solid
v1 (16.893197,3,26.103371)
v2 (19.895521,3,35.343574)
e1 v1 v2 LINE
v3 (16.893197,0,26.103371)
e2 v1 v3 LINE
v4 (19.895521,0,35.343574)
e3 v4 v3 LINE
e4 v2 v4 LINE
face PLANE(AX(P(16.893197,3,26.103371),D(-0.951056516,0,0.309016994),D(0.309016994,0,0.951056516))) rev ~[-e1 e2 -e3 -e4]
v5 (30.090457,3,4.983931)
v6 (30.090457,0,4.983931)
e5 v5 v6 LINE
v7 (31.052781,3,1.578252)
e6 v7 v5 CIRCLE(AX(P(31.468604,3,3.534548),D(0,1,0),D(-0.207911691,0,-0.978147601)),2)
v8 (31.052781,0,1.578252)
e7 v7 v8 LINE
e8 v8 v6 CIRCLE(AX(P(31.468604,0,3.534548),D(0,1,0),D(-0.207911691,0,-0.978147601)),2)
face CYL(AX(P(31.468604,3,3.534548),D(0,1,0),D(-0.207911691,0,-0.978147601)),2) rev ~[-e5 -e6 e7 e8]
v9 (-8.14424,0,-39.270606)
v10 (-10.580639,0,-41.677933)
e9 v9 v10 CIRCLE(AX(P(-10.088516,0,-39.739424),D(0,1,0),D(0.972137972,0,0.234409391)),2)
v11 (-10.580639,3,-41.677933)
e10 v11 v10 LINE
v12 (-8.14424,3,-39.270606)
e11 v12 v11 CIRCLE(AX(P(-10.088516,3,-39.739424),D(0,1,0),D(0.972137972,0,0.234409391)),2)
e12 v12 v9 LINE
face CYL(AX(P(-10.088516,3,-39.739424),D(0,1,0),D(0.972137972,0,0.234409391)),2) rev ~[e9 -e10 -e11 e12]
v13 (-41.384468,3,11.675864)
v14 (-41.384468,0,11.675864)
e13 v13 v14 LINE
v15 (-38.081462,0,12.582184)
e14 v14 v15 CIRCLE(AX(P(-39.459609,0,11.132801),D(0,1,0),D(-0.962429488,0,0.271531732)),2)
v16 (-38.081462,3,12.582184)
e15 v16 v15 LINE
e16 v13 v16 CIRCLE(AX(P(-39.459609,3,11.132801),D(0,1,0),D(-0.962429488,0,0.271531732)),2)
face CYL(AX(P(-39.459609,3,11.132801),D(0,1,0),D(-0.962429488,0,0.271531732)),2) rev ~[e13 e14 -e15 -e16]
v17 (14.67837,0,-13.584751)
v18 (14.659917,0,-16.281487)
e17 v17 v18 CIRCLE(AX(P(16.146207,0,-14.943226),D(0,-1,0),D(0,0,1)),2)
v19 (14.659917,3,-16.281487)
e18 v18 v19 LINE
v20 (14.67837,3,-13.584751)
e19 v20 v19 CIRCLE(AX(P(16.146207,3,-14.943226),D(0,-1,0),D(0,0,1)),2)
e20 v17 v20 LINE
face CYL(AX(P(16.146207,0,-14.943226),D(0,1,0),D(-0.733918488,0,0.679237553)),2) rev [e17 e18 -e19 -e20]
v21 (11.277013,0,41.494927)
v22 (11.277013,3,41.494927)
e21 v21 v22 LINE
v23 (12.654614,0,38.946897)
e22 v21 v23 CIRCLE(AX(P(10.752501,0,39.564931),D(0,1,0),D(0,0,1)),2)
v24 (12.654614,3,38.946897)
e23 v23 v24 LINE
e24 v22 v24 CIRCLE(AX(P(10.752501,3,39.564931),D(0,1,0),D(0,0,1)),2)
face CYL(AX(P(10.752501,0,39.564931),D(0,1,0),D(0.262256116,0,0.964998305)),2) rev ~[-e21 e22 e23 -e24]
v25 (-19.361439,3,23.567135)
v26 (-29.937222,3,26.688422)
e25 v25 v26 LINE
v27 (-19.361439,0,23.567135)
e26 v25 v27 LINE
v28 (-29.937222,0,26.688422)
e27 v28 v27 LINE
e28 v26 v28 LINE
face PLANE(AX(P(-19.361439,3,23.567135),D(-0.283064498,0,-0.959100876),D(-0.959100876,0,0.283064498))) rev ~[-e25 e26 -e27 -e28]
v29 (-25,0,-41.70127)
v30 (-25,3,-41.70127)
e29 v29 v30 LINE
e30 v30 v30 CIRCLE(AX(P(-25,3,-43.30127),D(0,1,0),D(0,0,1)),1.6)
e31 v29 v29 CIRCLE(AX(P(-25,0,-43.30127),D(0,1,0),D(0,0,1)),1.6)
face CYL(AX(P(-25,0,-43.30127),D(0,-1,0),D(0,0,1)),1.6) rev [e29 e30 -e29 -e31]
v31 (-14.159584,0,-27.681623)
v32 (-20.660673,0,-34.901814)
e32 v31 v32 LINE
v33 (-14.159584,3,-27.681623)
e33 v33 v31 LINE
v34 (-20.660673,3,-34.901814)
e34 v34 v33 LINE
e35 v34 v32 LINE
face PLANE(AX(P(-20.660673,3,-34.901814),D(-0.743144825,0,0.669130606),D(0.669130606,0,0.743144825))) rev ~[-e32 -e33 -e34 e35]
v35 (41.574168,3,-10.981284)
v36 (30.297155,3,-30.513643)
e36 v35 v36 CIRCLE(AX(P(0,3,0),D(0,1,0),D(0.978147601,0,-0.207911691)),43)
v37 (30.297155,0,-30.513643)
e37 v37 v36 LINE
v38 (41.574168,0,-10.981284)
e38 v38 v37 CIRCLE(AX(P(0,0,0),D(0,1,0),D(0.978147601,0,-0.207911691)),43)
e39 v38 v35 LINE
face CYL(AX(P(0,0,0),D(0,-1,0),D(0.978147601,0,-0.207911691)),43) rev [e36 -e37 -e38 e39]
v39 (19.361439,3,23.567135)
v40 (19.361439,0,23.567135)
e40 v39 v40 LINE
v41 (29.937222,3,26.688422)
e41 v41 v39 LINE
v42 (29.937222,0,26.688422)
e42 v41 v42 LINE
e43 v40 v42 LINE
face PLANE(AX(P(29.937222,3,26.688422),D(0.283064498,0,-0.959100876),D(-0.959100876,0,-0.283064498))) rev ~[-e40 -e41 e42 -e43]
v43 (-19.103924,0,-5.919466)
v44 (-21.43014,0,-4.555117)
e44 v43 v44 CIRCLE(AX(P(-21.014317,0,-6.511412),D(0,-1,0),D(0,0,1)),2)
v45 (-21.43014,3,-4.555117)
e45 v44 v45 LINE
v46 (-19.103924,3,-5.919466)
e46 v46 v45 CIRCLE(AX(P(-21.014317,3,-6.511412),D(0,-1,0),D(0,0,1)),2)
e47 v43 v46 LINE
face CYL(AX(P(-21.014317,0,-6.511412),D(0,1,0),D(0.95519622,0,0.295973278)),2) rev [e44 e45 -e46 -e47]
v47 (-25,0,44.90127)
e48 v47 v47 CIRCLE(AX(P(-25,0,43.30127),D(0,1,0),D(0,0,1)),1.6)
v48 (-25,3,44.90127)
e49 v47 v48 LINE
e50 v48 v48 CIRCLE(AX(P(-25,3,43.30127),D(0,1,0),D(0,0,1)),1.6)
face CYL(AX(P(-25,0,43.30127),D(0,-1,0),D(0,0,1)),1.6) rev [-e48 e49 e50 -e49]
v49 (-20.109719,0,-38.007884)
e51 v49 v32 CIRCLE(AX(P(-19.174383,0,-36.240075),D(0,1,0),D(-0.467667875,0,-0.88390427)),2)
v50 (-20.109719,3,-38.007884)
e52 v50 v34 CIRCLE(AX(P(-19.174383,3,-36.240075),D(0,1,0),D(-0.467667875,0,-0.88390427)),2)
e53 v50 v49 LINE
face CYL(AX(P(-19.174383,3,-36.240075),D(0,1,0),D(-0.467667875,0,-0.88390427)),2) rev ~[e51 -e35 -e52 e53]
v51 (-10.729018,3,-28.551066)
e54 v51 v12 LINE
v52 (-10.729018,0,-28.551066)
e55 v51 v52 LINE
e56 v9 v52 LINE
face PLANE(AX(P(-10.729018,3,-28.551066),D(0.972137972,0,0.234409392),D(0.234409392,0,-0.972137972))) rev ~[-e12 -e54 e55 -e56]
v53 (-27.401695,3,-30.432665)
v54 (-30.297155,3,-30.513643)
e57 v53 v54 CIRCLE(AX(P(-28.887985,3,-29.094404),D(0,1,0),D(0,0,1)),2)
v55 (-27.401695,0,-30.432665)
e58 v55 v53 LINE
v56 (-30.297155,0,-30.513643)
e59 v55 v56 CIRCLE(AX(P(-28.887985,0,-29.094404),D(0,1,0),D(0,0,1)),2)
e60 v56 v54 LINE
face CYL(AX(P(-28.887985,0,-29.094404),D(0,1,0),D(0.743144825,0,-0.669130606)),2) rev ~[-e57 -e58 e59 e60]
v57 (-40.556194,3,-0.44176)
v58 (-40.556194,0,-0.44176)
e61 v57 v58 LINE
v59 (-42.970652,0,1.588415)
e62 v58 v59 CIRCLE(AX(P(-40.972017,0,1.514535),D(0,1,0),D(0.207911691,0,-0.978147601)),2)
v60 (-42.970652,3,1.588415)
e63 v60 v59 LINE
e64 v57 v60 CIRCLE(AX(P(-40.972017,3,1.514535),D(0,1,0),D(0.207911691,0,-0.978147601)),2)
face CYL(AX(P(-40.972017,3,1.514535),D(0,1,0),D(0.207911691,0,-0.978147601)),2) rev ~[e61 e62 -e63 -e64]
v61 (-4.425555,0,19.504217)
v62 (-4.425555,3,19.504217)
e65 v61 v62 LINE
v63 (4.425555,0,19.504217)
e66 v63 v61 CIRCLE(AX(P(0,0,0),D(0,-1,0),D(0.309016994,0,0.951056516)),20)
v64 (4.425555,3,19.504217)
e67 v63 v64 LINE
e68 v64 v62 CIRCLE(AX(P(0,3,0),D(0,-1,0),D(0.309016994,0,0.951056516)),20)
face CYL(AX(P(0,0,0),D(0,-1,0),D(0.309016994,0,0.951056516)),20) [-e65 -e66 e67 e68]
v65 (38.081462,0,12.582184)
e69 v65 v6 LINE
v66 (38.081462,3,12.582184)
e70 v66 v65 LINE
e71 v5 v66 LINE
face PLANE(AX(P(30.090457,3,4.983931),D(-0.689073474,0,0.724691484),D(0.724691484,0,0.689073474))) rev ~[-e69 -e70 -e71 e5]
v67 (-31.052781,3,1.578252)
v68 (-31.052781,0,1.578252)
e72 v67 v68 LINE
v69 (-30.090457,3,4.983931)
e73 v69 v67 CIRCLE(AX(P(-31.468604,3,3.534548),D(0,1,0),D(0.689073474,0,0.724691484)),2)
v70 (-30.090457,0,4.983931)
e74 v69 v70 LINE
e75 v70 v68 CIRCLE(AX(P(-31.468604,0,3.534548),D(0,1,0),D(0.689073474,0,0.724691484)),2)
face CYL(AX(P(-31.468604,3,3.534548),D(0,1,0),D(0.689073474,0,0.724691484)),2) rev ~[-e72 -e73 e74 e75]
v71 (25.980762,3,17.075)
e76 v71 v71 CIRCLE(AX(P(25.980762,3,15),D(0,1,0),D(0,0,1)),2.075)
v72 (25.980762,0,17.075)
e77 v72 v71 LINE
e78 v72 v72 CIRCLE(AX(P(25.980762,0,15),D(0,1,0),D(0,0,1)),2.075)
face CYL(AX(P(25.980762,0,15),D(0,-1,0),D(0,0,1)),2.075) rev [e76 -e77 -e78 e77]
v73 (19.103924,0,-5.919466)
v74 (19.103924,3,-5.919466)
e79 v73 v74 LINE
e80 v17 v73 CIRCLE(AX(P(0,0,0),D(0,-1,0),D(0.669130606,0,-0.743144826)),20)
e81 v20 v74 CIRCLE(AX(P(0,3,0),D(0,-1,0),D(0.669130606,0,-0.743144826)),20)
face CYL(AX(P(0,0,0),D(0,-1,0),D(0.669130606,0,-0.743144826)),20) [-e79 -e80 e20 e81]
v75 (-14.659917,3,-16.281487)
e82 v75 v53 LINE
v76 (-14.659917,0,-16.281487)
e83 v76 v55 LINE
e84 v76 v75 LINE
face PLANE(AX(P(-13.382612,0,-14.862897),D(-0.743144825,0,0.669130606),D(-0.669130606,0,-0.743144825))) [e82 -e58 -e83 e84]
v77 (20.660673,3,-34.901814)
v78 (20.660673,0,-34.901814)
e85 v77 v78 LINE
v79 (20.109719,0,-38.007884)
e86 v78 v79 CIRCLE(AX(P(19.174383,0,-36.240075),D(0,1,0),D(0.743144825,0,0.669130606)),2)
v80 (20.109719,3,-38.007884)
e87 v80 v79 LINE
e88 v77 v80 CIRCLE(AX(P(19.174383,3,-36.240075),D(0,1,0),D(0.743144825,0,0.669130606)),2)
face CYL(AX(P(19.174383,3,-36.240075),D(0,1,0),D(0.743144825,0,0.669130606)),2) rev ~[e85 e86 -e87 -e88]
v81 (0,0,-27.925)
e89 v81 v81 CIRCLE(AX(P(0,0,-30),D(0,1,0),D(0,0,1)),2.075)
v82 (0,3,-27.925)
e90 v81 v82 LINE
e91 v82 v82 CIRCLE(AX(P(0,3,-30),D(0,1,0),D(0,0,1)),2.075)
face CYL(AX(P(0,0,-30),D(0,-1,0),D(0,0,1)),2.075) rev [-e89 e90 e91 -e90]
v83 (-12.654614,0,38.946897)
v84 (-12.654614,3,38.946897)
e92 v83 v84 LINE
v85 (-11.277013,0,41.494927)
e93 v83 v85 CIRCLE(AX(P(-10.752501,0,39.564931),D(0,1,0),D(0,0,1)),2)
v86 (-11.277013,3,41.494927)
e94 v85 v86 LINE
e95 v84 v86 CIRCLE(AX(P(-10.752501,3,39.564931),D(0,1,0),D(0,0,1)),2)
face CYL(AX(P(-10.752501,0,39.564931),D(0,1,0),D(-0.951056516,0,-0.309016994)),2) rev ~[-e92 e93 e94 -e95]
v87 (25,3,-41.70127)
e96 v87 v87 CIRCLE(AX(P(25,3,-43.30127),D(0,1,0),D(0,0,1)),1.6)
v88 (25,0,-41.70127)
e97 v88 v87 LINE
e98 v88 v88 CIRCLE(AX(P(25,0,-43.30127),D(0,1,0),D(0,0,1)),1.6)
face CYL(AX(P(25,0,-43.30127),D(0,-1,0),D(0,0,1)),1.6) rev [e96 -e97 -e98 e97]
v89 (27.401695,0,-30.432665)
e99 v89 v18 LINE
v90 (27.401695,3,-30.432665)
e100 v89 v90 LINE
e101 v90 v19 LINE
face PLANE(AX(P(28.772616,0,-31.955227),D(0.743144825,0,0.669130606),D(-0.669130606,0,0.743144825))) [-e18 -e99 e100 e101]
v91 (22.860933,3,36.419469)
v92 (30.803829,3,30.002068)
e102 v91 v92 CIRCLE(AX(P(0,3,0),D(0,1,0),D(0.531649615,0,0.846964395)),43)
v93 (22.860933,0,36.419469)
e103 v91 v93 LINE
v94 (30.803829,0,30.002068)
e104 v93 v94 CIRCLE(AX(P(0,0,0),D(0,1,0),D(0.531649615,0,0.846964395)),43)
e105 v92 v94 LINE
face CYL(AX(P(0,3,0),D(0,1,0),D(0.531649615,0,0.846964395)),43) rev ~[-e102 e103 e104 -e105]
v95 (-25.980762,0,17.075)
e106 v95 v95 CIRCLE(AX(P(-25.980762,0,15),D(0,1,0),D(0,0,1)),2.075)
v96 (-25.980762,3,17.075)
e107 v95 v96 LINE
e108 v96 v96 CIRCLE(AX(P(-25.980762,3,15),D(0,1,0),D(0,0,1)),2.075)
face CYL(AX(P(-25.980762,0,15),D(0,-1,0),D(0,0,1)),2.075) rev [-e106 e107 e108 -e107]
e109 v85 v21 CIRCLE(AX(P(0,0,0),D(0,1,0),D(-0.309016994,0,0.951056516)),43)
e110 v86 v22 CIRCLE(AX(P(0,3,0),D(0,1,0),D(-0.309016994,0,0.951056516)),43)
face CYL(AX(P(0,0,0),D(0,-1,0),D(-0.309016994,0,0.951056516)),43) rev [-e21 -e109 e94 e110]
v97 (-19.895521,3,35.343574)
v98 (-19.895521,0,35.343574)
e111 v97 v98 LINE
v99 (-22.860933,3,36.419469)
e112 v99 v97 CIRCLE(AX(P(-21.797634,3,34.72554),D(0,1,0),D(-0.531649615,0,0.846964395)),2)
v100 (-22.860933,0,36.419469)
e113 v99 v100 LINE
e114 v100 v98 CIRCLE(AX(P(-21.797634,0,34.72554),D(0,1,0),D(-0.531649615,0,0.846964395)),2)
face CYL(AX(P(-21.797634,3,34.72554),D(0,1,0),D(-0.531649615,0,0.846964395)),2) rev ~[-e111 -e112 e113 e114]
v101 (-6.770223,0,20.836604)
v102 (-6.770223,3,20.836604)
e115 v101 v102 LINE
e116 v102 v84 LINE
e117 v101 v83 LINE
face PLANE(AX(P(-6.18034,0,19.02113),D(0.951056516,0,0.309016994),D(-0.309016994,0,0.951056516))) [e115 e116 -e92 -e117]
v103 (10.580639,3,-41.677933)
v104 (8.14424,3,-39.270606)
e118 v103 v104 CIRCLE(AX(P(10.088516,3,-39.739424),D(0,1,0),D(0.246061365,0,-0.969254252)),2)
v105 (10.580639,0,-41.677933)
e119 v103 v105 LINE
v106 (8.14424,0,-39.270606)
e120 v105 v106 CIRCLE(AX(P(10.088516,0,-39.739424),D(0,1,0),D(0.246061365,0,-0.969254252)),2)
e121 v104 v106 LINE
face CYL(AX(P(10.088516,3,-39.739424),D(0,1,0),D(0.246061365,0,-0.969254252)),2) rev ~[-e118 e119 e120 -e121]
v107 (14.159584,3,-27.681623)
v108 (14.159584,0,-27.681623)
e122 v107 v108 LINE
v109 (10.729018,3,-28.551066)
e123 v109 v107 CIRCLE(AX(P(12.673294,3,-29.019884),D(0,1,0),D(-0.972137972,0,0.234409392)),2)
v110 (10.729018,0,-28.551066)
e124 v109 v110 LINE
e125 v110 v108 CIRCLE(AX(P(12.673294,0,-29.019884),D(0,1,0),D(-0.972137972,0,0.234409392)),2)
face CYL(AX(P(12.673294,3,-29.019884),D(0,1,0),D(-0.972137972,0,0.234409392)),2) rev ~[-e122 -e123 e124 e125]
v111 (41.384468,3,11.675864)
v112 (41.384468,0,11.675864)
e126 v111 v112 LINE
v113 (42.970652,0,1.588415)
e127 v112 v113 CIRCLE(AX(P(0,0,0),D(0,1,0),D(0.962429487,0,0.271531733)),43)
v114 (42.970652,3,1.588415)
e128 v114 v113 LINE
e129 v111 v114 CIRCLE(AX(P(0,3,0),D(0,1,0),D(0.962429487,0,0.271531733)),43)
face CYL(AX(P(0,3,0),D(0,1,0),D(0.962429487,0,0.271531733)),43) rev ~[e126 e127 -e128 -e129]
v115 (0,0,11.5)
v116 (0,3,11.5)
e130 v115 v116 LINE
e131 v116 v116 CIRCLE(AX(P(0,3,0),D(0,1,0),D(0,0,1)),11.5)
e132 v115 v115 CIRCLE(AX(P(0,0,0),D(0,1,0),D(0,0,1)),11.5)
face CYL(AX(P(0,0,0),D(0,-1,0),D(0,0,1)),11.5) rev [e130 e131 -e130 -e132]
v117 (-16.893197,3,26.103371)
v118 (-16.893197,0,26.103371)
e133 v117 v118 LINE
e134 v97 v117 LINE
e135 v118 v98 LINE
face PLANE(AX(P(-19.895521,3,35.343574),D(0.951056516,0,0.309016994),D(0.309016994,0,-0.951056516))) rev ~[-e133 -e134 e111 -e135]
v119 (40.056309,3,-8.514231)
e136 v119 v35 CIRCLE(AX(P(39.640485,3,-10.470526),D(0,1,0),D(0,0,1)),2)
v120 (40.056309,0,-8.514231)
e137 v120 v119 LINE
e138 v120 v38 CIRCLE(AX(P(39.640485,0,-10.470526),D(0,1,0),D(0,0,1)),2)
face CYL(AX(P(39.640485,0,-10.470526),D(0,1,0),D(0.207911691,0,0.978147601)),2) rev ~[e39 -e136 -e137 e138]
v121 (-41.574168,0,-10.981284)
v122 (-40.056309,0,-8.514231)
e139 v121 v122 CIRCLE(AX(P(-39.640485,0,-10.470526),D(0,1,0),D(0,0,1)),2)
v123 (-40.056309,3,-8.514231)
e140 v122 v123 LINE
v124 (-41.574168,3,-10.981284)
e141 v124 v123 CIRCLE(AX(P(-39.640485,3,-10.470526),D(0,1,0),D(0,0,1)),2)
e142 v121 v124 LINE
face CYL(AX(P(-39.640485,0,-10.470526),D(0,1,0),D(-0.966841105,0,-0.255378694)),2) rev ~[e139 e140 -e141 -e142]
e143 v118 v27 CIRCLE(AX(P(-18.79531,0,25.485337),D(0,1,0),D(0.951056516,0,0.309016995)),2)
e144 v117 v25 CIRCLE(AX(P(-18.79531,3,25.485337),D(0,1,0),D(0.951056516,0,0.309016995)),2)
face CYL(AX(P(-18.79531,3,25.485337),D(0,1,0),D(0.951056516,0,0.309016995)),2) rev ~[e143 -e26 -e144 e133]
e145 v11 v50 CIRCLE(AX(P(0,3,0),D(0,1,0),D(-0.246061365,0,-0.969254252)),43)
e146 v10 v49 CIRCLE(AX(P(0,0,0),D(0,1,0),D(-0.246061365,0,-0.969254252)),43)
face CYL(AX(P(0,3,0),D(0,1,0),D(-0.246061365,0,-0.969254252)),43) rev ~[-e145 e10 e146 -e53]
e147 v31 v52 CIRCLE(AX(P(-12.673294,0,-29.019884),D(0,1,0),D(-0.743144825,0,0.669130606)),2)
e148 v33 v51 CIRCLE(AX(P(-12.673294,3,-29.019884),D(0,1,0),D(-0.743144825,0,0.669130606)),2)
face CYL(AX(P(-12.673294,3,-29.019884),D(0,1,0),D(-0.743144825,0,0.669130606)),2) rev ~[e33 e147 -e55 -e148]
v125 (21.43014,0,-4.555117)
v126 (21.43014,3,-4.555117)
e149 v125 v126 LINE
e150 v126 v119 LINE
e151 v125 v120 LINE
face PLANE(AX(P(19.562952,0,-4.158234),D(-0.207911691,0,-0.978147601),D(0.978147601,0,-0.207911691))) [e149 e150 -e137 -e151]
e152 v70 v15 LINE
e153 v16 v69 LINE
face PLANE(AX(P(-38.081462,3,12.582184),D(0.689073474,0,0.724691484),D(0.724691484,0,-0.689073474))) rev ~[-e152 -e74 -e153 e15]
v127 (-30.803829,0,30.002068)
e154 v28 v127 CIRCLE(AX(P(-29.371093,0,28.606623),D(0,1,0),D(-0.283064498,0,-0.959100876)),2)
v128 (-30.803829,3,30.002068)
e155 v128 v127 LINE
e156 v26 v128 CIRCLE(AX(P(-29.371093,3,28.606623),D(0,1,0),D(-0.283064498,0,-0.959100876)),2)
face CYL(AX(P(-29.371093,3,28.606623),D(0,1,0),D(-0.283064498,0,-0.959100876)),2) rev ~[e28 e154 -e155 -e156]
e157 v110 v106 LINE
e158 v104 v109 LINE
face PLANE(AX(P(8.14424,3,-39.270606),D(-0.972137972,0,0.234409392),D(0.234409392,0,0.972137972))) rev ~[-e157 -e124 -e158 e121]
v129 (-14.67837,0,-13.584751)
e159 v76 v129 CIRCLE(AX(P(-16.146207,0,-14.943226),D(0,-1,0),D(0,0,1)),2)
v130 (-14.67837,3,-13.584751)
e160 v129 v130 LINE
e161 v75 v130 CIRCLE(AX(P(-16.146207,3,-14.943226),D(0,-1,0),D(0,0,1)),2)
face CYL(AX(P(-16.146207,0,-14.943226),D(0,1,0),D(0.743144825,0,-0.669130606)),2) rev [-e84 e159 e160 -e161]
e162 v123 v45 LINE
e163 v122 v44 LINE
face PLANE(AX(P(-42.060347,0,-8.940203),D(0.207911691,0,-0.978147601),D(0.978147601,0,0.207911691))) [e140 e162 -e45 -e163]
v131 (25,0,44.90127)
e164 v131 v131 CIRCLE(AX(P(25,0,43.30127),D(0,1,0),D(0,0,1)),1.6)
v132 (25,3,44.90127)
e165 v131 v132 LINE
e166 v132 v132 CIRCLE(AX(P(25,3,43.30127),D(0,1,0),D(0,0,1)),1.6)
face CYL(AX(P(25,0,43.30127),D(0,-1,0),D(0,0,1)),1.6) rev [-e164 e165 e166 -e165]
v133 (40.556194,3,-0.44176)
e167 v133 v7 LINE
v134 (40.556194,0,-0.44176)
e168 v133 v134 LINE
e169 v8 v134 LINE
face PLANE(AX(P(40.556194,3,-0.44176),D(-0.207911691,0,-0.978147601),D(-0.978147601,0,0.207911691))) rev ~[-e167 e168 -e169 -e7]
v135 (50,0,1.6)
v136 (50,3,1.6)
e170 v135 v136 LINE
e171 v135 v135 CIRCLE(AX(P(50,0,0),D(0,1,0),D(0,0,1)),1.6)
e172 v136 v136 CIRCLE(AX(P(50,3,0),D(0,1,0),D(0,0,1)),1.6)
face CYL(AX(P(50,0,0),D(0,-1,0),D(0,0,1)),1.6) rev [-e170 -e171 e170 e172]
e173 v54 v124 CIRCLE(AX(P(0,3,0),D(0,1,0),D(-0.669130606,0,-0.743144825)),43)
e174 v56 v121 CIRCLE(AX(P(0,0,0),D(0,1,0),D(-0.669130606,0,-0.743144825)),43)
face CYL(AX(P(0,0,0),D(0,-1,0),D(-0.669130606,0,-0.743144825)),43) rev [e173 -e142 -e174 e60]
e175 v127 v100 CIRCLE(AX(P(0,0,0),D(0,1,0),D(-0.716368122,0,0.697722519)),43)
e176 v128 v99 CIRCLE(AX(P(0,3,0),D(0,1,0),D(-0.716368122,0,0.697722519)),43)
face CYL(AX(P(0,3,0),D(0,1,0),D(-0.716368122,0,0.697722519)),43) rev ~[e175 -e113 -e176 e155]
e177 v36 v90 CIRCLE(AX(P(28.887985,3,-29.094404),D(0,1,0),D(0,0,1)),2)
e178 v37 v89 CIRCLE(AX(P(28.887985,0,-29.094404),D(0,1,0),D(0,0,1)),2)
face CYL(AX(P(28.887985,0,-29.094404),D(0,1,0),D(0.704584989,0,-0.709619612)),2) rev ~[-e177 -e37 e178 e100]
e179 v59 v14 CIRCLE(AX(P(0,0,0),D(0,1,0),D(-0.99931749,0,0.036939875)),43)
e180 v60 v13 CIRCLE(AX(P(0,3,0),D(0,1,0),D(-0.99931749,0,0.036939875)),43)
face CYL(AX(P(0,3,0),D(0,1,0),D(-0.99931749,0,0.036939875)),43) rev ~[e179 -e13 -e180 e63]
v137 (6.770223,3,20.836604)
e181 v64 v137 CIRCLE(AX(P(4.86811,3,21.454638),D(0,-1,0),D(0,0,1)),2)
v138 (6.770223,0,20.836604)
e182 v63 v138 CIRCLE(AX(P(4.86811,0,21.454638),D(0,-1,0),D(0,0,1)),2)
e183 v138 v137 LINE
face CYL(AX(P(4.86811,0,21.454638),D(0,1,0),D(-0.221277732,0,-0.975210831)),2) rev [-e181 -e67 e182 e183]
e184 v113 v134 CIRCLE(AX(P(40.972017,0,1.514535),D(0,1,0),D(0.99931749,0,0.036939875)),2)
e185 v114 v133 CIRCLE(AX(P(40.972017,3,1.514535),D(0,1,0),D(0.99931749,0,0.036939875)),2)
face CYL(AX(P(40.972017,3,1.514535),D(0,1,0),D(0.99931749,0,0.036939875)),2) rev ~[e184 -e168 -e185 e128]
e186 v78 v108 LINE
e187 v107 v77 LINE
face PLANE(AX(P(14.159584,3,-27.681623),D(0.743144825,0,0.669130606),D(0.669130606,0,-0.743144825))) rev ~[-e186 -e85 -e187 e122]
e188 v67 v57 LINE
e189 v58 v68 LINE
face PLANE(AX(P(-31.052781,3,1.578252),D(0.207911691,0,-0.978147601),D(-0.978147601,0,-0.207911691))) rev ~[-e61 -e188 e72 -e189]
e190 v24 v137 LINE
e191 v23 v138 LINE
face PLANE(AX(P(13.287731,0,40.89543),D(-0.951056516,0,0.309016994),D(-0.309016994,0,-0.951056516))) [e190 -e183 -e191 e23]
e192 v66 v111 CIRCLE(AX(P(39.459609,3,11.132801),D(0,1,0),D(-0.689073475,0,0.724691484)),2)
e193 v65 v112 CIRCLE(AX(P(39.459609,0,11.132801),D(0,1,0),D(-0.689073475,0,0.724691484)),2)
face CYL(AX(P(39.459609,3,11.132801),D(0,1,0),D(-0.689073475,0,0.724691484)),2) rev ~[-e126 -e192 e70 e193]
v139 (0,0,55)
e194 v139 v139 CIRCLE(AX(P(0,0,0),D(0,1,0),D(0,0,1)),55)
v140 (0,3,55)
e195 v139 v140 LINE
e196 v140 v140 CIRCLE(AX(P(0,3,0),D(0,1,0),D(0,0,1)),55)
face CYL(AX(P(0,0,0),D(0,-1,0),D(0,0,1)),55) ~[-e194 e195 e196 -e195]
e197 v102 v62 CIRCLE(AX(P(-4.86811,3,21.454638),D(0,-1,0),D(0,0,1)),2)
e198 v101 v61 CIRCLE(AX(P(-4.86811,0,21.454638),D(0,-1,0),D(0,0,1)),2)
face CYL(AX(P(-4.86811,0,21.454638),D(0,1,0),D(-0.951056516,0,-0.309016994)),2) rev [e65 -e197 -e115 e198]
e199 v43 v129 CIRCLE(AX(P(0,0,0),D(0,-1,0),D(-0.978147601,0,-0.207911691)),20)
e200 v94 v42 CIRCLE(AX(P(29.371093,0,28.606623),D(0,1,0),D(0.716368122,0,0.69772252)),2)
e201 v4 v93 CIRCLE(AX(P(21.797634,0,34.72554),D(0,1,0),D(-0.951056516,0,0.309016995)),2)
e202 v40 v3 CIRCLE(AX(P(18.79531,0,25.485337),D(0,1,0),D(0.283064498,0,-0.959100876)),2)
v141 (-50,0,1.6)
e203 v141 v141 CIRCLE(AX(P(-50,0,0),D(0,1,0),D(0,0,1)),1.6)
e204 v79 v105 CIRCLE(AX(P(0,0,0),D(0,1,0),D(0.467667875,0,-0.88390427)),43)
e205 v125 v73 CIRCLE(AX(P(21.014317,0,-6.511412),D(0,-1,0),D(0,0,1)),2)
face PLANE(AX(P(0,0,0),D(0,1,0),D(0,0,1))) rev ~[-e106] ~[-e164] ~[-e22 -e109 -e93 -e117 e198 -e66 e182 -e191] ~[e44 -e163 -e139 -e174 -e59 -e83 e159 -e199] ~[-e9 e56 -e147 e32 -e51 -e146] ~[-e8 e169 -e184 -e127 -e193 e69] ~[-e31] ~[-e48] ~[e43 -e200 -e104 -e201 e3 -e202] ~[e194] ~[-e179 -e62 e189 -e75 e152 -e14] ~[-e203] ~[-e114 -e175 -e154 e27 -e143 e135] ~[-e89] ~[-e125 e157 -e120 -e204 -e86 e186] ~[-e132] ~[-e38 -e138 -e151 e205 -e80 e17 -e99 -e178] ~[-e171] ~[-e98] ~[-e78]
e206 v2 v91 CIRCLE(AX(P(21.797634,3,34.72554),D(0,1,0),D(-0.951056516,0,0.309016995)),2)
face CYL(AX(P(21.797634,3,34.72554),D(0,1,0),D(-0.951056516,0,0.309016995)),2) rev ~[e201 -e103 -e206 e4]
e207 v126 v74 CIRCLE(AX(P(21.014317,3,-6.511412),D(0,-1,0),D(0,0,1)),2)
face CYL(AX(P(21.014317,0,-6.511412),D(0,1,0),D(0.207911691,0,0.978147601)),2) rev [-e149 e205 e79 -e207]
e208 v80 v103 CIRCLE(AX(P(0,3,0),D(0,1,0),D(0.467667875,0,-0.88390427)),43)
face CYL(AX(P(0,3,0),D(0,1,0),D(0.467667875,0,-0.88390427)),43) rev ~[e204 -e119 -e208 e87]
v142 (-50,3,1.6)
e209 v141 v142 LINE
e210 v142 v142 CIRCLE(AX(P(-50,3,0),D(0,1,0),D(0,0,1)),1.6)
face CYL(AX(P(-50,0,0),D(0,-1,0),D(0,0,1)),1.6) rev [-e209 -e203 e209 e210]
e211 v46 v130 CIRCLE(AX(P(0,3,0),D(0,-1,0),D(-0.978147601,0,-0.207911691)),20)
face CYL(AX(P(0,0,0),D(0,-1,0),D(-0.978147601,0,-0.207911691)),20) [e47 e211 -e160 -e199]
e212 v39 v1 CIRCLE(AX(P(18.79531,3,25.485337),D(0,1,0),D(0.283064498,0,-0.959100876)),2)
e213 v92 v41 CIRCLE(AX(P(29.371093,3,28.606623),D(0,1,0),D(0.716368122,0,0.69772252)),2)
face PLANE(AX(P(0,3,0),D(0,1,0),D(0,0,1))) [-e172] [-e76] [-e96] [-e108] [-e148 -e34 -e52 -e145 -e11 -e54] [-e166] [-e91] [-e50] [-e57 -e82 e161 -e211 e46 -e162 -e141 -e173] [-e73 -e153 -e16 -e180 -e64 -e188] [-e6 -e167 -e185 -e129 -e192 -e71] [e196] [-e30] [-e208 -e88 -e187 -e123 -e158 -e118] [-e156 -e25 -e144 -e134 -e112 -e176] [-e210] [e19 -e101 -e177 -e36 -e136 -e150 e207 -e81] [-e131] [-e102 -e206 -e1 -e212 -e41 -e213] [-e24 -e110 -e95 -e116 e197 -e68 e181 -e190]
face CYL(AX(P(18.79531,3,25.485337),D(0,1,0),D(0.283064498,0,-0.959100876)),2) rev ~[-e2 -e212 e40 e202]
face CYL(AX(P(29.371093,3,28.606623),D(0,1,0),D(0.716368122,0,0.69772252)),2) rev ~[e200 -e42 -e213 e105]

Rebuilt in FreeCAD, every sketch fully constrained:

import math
import FreeCAD as App
import Part
import Sketcher
Q = App.Units.Quantity


def edges_at(feature, points):
    """Names of the edges that pass closest to the given points."""
    edges = feature.Shape.Edges
    near = lambda p: min(range(len(edges)), key=lambda i: edges[i].distToShape(Part.Vertex(*p))[0])
    return sorted({f"Edge{near(p) + 1}" for p in points})

doc = App.newDocument("Part")
body = doc.addObject("PartDesign::Body", "Body")

# Sketch on XZ plane
sketch1 = body.newObject("Sketcher::SketchObject", "Sketch")
sketch1.AttachmentSupport = (doc.getObject("XZ_Plane"), [""])
sketch1.MapMode = "FlatFace"
sketch1.addGeometry([
    Part.Circle(App.Vector(0, 0, 0), App.Vector(0, 0, 1), 55),  # 0
    Part.LineSegment(App.Vector(-28.772616, -31.955227, 0), App.Vector(-13.382612, -14.862897, 0)),  # 1
    Part.ArcOfCircle(Part.Circle(App.Vector(0, 0, 0), App.Vector(0, 0, 1), 20), math.radians(-168), math.radians(-132)),  # 2
    Part.LineSegment(App.Vector(-19.562952, -4.158234, 0), App.Vector(-42.060347, -8.940203, 0)),  # 3
    Part.ArcOfCircle(Part.Circle(App.Vector(0, 0, 0), App.Vector(0, 0, 1), 43), math.radians(-168), math.radians(-132)),  # 4
    Part.Circle(App.Vector(-25, -43.30127, 0), App.Vector(0, 0, 1), 1.6),  # 5
    Part.Circle(App.Vector(0, -30, 0), App.Vector(0, 0, 1), 2.075),  # 6
    Part.Circle(App.Vector(-50, 0, 0), App.Vector(0, 0, 1), 1.6),  # 7
    Part.Circle(App.Vector(-25.980762, 15, 0), App.Vector(0, 0, 1), 2.075),  # 8
    Part.Circle(App.Vector(-25, 43.30127, 0), App.Vector(0, 0, 1), 1.6),  # 9
    Part.Circle(App.Vector(25, -43.30127, 0), App.Vector(0, 0, 1), 1.6),  # 10
    Part.LineSegment(App.Vector(42.060347, -8.940203, 0), App.Vector(19.562952, -4.158234, 0)),  # 11
    Part.ArcOfCircle(Part.Circle(App.Vector(0, 0, 0), App.Vector(0, 0, 1), 20), math.radians(-48), math.radians(-12)),  # 12
    Part.LineSegment(App.Vector(13.382612, -14.862897, 0), App.Vector(28.772616, -31.955227, 0)),  # 13
    Part.ArcOfCircle(Part.Circle(App.Vector(0, 0, 0), App.Vector(0, 0, 1), 43), math.radians(-48), math.radians(-12)),  # 14
    Part.Circle(App.Vector(50, 0, 0), App.Vector(0, 0, 1), 1.6),  # 15
    Part.Circle(App.Vector(0, 0, 0), App.Vector(0, 0, 1), 11.5),  # 16
    Part.LineSegment(App.Vector(-13.287731, 40.89543, 0), App.Vector(-6.18034, 19.02113, 0)),  # 17
    Part.ArcOfCircle(Part.Circle(App.Vector(0, 0, 0), App.Vector(0, 0, 1), 20), math.radians(72), math.radians(108)),  # 18
    Part.LineSegment(App.Vector(6.18034, 19.02113, 0), App.Vector(13.287731, 40.89543, 0)),  # 19
    Part.ArcOfCircle(Part.Circle(App.Vector(0, 0, 0), App.Vector(0, 0, 1), 43), math.radians(72), math.radians(108)),  # 20
    Part.Circle(App.Vector(25, 43.30127, 0), App.Vector(0, 0, 1), 1.6),  # 21
    Part.Circle(App.Vector(25.980762, 15, 0), App.Vector(0, 0, 1), 2.075),  # 22
], False)
sketch1.addConstraint([
    Sketcher.Constraint("Coincident", 1, 2, 2, 2),
    Sketcher.Constraint("Coincident", 2, 1, 3, 1),
    Sketcher.Constraint("Coincident", 3, 2, 4, 1),
    Sketcher.Constraint("Coincident", 4, 2, 1, 1),
    Sketcher.Constraint("Coincident", 11, 2, 12, 2),
    Sketcher.Constraint("Coincident", 12, 1, 13, 1),
    Sketcher.Constraint("Coincident", 13, 2, 14, 1),
    Sketcher.Constraint("Coincident", 14, 2, 11, 1),
    Sketcher.Constraint("Coincident", 17, 2, 18, 2),
    Sketcher.Constraint("Coincident", 18, 1, 19, 1),
    Sketcher.Constraint("Coincident", 19, 2, 20, 1),
    Sketcher.Constraint("Coincident", 20, 2, 17, 1),
    Sketcher.Constraint("Coincident", 0, 3, -1, 1),
    Sketcher.Constraint("Coincident", 2, 3, -1, 1),
    Sketcher.Constraint("Coincident", 4, 3, -1, 1),
    Sketcher.Constraint("Coincident", 12, 3, -1, 1),
    Sketcher.Constraint("Coincident", 14, 3, -1, 1),
    Sketcher.Constraint("Coincident", 16, 3, -1, 1),
    Sketcher.Constraint("Coincident", 18, 3, -1, 1),
    Sketcher.Constraint("Coincident", 20, 3, -1, 1),
    Sketcher.Constraint("Equal", 5, 7),
    Sketcher.Constraint("Equal", 6, 8),
    Sketcher.Constraint("Equal", 7, 9),
    Sketcher.Constraint("Equal", 9, 10),
    Sketcher.Constraint("Equal", 2, 12),
    Sketcher.Constraint("Equal", 4, 14),
    Sketcher.Constraint("Equal", 10, 15),
    Sketcher.Constraint("Equal", 12, 18),
    Sketcher.Constraint("Equal", 14, 20),
    Sketcher.Constraint("Equal", 15, 21),
    Sketcher.Constraint("Equal", 8, 22),
    Sketcher.Constraint("Symmetric", 9, 3, 10, 3, -1, 1),
    Sketcher.Constraint("Symmetric", 7, 3, 15, 3, -1, 1),
    Sketcher.Constraint("Symmetric", 5, 3, 21, 3, -1, 1),
    Sketcher.Constraint("Symmetric", 5, 3, 10, 3, -2),
    Sketcher.Constraint("Symmetric", 8, 3, 22, 3, -2),
    Sketcher.Constraint("PointOnObject", 6, 3, -2),
    Sketcher.Constraint("PointOnObject", 7, 3, -1),
    Sketcher.Constraint("Horizontal", 2, 1, 11, 2),
    Sketcher.Constraint("Horizontal", 1, 2, 12, 1),
    Sketcher.Constraint("Horizontal", 4, 2, 13, 2),
    Sketcher.Constraint("Horizontal", 3, 2, 14, 2),
    Sketcher.Constraint("Horizontal", 17, 2, 18, 1),
    Sketcher.Constraint("Horizontal", 19, 2, 20, 2),
    Sketcher.Constraint("Diameter", 0, Q("110 mm")),
    Sketcher.Constraint("Diameter", 16, Q("23 mm")),
    Sketcher.Constraint("Radius", 2, Q("20 mm")),
    Sketcher.Constraint("Radius", 4, Q("43 mm")),
    Sketcher.Constraint("Diameter", 5, Q("3.2 mm")),
    Sketcher.Constraint("Diameter", 6, Q("4.15 mm")),
    Sketcher.Constraint("Angle", 1, Q("48 deg")),
    Sketcher.Constraint("Angle", 3, Q("-168 deg")),
    Sketcher.Constraint("Angle", 17, Q("-72 deg")),
    Sketcher.Constraint("DistanceX", 5, 3, -1, 1, Q("25 mm")),
    Sketcher.Constraint("DistanceY", 6, 3, -1, 1, Q("30 mm")),
    Sketcher.Constraint("DistanceX", 7, 3, -1, 1, Q("50 mm")),
    Sketcher.Constraint("DistanceY", -1, 1, 8, 3, Q("15 mm")),
    Sketcher.Constraint("DistanceY", 5, 3, -1, 1, Q("43.30127 mm")),
    Sketcher.Constraint("DistanceX", 17, 2, -1, 1, Q("6.18034 mm")),
    Sketcher.Constraint("DistanceX", 2, 1, 1, 2, Q("6.18034 mm")),
    Sketcher.Constraint("DistanceX", 19, 2, 22, 3, Q("12.693031 mm")),
    Sketcher.Constraint("DistanceX", 1, 2, -1, 1, Q("13.382612 mm")),
])
pad1 = body.newObject("PartDesign::Pad", "Pad")
pad1.Profile = sketch1
pad1.Length = 3
pad1.Reversed = True

# Sketch on XZ plane
sketch2 = body.newObject("Sketcher::SketchObject", "Sketch001")
sketch2.AttachmentSupport = (doc.getObject("XZ_Plane"), [""])
sketch2.MapMode = "FlatFace"
sketch2.AttachmentOffset = App.Placement(App.Vector(0, 0, -3), App.Rotation())
sketch2.addGeometry([
    Part.LineSegment(App.Vector(-20.660673, -34.901814, 0), App.Vector(-14.159584, -27.681623, 0)),  # 0
    Part.ArcOfCircle(Part.Circle(App.Vector(-12.673294, -29.019884, 0), App.Vector(0, 0, 1), 2), math.radians(13.556811), math.radians(138)),  # 1
    Part.LineSegment(App.Vector(-10.729018, -28.551066, 0), App.Vector(-8.14424, -39.270606, 0)),  # 2
    Part.ArcOfCircle(Part.Circle(App.Vector(-10.088516, -39.739424, 0), App.Vector(0, 0, 1), 2), math.radians(-104.244566), math.radians(13.556811)),  # 3
    Part.ArcOfCircle(Part.Circle(App.Vector(0, 0, 0), App.Vector(0, 0, 1), 43), math.radians(-117.883019), math.radians(-104.244566)),  # 4
    Part.ArcOfCircle(Part.Circle(App.Vector(-19.174383, -36.240075, 0), App.Vector(0, 0, 1), 2), math.radians(138), math.radians(242.116981)),  # 5
], False)
sketch2.addConstraint([
    Sketcher.Constraint("Tangent", 0, 2, 1, 2),
    Sketcher.Constraint("Tangent", 1, 1, 2, 1),
    Sketcher.Constraint("Tangent", 2, 2, 3, 2),
    Sketcher.Constraint("Tangent", 3, 1, 4, 2),
    Sketcher.Constraint("Tangent", 4, 1, 5, 2),
    Sketcher.Constraint("Tangent", 5, 1, 0, 1),
    Sketcher.Constraint("Coincident", 4, 3, -1, 1),
    Sketcher.Constraint("Equal", 1, 3),
    Sketcher.Constraint("Equal", 3, 5),
    Sketcher.Constraint("Radius", 1, Q("2 mm")),
    Sketcher.Constraint("Radius", 4, Q("43 mm")),
    Sketcher.Constraint("Angle", 0, Q("48 deg")),
    Sketcher.Constraint("DistanceY", 4, 1, 1, 3, Q("8.987999 mm")),
    Sketcher.Constraint("DistanceX", 5, 3, 0, 2, Q("5.014799 mm")),
    Sketcher.Constraint("DistanceY", 3, 3, 0, 2, Q("12.057801 mm")),
])
pocket1 = body.newObject("PartDesign::Pocket", "Pocket")
pocket1.Profile = sketch2
pocket1.Type = "UpToFirst"
pocket1.Reversed = True

# Sketch on XZ plane
sketch3 = body.newObject("Sketcher::SketchObject", "Sketch002")
sketch3.AttachmentSupport = (doc.getObject("XZ_Plane"), [""])
sketch3.MapMode = "FlatFace"
sketch3.AttachmentOffset = App.Placement(App.Vector(0, 0, -3), App.Rotation())
sketch3.addGeometry([
    Part.LineSegment(App.Vector(8.14424, -39.270606, 0), App.Vector(10.729018, -28.551066, 0)),  # 0
    Part.ArcOfCircle(Part.Circle(App.Vector(12.673294, -29.019884, 0), App.Vector(0, 0, 1), 2), math.radians(42), math.radians(166.443189)),  # 1
    Part.LineSegment(App.Vector(14.159584, -27.681623, 0), App.Vector(20.660673, -34.901814, 0)),  # 2
    Part.ArcOfCircle(Part.Circle(App.Vector(19.174383, -36.240075, 0), App.Vector(0, 0, 1), 2), math.radians(-62.116981), math.radians(42)),  # 3
    Part.ArcOfCircle(Part.Circle(App.Vector(0, 0, 0), App.Vector(0, 0, 1), 43), math.radians(-75.755434), math.radians(-62.116981)),  # 4
    Part.ArcOfCircle(Part.Circle(App.Vector(10.088516, -39.739424, 0), App.Vector(0, 0, 1), 2), math.radians(166.443189), math.radians(284.244566)),  # 5
], False)
sketch3.addConstraint([
    Sketcher.Constraint("Tangent", 0, 2, 1, 2),
    Sketcher.Constraint("Tangent", 1, 1, 2, 1),
    Sketcher.Constraint("Tangent", 2, 2, 3, 2),
    Sketcher.Constraint("Tangent", 3, 1, 4, 2),
    Sketcher.Constraint("Tangent", 4, 1, 5, 2),
    Sketcher.Constraint("Tangent", 5, 1, 0, 1),
    Sketcher.Constraint("Coincident", 4, 3, -1, 1),
    Sketcher.Constraint("Equal", 1, 3),
    Sketcher.Constraint("Equal", 3, 5),
    Sketcher.Constraint("Radius", 1, Q("2 mm")),
    Sketcher.Constraint("Radius", 4, Q("43 mm")),
    Sketcher.Constraint("Angle", 2, Q("-48 deg")),
    Sketcher.Constraint("DistanceY", 3, 1, 1, 3, Q("8.987999 mm")),
    Sketcher.Constraint("DistanceX", 1, 1, 3, 3, Q("5.014799 mm")),
    Sketcher.Constraint("DistanceY", 5, 3, 1, 1, Q("12.057801 mm")),
])
pocket2 = body.newObject("PartDesign::Pocket", "Pocket001")
pocket2.Profile = sketch3
pocket2.Type = "UpToFirst"
pocket2.Reversed = True

# Sketch on XZ plane
sketch4 = body.newObject("Sketcher::SketchObject", "Sketch003")
sketch4.AttachmentSupport = (doc.getObject("XZ_Plane"), [""])
sketch4.MapMode = "FlatFace"
sketch4.AttachmentOffset = App.Placement(App.Vector(0, 0, -3), App.Rotation())
sketch4.addGeometry([
    Part.LineSegment(App.Vector(40.556194, -0.44176, 0), App.Vector(31.052781, 1.578252, 0)),  # 0
    Part.ArcOfCircle(Part.Circle(App.Vector(31.468604, 3.534548, 0), App.Vector(0, 0, 1), 2), math.radians(133.556811), math.radians(258)),  # 1
    Part.LineSegment(App.Vector(30.090457, 4.983931, 0), App.Vector(38.081462, 12.582184, 0)),  # 2
    Part.ArcOfCircle(Part.Circle(App.Vector(39.459609, 11.132801, 0), App.Vector(0, 0, 1), 2), math.radians(15.755434), math.radians(133.556811)),  # 3
    Part.ArcOfCircle(Part.Circle(App.Vector(0, 0, 0), App.Vector(0, 0, 1), 43), math.radians(2.116981), math.radians(15.755434)),  # 4
    Part.ArcOfCircle(Part.Circle(App.Vector(40.972017, 1.514535, 0), App.Vector(0, 0, 1), 2), math.radians(-102), math.radians(2.116981)),  # 5
], False)
sketch4.addConstraint([
    Sketcher.Constraint("Tangent", 0, 2, 1, 2),
    Sketcher.Constraint("Tangent", 1, 1, 2, 1),
    Sketcher.Constraint("Tangent", 2, 2, 3, 2),
    Sketcher.Constraint("Tangent", 3, 1, 4, 2),
    Sketcher.Constraint("Tangent", 4, 1, 5, 2),
    Sketcher.Constraint("Tangent", 5, 1, 0, 1),
    Sketcher.Constraint("Coincident", 4, 3, -1, 1),
    Sketcher.Constraint("Equal", 1, 3),
    Sketcher.Constraint("Equal", 3, 5),
    Sketcher.Constraint("Radius", 1, Q("2 mm")),
    Sketcher.Constraint("Radius", 4, Q("43 mm")),
    Sketcher.Constraint("Angle", 0, Q("168 deg")),
    Sketcher.Constraint("DistanceY", -1, 1, 3, 3, Q("11.132801 mm")),
    Sketcher.Constraint("Distance", 2, Q("11.026768 mm")),
    Sketcher.Constraint("DistanceX", -1, 1, 0, 2, Q("31.052781 mm")),
])
pocket3 = body.newObject("PartDesign::Pocket", "Pocket002")
pocket3.Profile = sketch4
pocket3.Type = "UpToFirst"
pocket3.Reversed = True

# Sketch on XZ plane
sketch5 = body.newObject("Sketcher::SketchObject", "Sketch004")
sketch5.AttachmentSupport = (doc.getObject("XZ_Plane"), [""])
sketch5.MapMode = "FlatFace"
sketch5.AttachmentOffset = App.Placement(App.Vector(0, 0, -3), App.Rotation())
sketch5.addGeometry([
    Part.LineSegment(App.Vector(29.937222, 26.688422, 0), App.Vector(19.361439, 23.567135, 0)),  # 0
    Part.ArcOfCircle(Part.Circle(App.Vector(18.79531, 25.485337, 0), App.Vector(0, 0, 1), 2), math.radians(162), math.radians(286.443189)),  # 1
    Part.LineSegment(App.Vector(16.893197, 26.103371, 0), App.Vector(19.895521, 35.343574, 0)),  # 2
    Part.ArcOfCircle(Part.Circle(App.Vector(21.797634, 34.72554, 0), App.Vector(0, 0, 1), 2), math.radians(57.883019), math.radians(162)),  # 3
    Part.ArcOfCircle(Part.Circle(App.Vector(0, 0, 0), App.Vector(0, 0, 1), 43), math.radians(44.244566), math.radians(57.883019)),  # 4
    Part.ArcOfCircle(Part.Circle(App.Vector(29.371093, 28.606623, 0), App.Vector(0, 0, 1), 2), math.radians(-73.556811), math.radians(44.244566)),  # 5
], False)
sketch5.addConstraint([
    Sketcher.Constraint("Tangent", 0, 2, 1, 2),
    Sketcher.Constraint("Tangent", 1, 1, 2, 1),
    Sketcher.Constraint("Tangent", 2, 2, 3, 2),
    Sketcher.Constraint("Tangent", 3, 1, 4, 2),
    Sketcher.Constraint("Tangent", 4, 1, 5, 2),
    Sketcher.Constraint("Tangent", 5, 1, 0, 1),
    Sketcher.Constraint("Coincident", 4, 3, -1, 1),
    Sketcher.Constraint("Equal", 1, 3),
    Sketcher.Constraint("Equal", 3, 5),
    Sketcher.Constraint("Radius", 1, Q("2 mm")),
    Sketcher.Constraint("Radius", 4, Q("43 mm")),
    Sketcher.Constraint("Angle", 2, Q("72 deg")),
    Sketcher.Constraint("DistanceY", 0, 2, 1, 3, Q("1.918202 mm")),
    Sketcher.Constraint("DistanceX", 3, 3, 3, 1, Q("1.063299 mm")),
    Sketcher.Constraint("DistanceY", 1, 1, 3, 1, Q("10.316098 mm")),
])
pocket4 = body.newObject("PartDesign::Pocket", "Pocket003")
pocket4.Profile = sketch5
pocket4.Type = "UpToFirst"
pocket4.Reversed = True

# Sketch on XZ plane
sketch6 = body.newObject("Sketcher::SketchObject", "Sketch005")
sketch6.AttachmentSupport = (doc.getObject("XZ_Plane"), [""])
sketch6.MapMode = "FlatFace"
sketch6.AttachmentOffset = App.Placement(App.Vector(0, 0, -3), App.Rotation())
sketch6.addGeometry([
    Part.LineSegment(App.Vector(-19.895521, 35.343574, 0), App.Vector(-16.893197, 26.103371, 0)),  # 0
    Part.ArcOfCircle(Part.Circle(App.Vector(-18.79531, 25.485337, 0), App.Vector(0, 0, 1), 2), math.radians(-106.443189), math.radians(18)),  # 1
    Part.LineSegment(App.Vector(-19.361439, 23.567135, 0), App.Vector(-29.937222, 26.688422, 0)),  # 2
    Part.ArcOfCircle(Part.Circle(App.Vector(-29.371093, 28.606623, 0), App.Vector(0, 0, 1), 2), math.radians(135.755434), math.radians(253.556811)),  # 3
    Part.ArcOfCircle(Part.Circle(App.Vector(0, 0, 0), App.Vector(0, 0, 1), 43), math.radians(122.116981), math.radians(135.755434)),  # 4
    Part.ArcOfCircle(Part.Circle(App.Vector(-21.797634, 34.72554, 0), App.Vector(0, 0, 1), 2), math.radians(18), math.radians(122.116981)),  # 5
], False)
sketch6.addConstraint([
    Sketcher.Constraint("Coincident", 0, 2, 1, 2),
    Sketcher.Constraint("Coincident", 1, 1, 2, 1),
    Sketcher.Constraint("Coincident", 2, 2, 3, 2),
    Sketcher.Constraint("Coincident", 3, 1, 4, 2),
    Sketcher.Constraint("Coincident", 4, 1, 5, 2),
    Sketcher.Constraint("Coincident", 5, 1, 0, 1),
    Sketcher.Constraint("Coincident", 4, 3, -1, 1),
    Sketcher.Constraint("Radius", 1, Q("2 mm")),
    Sketcher.Constraint("Radius", 3, Q("2 mm")),
    Sketcher.Constraint("Radius", 4, Q("43 mm")),
    Sketcher.Constraint("Radius", 5, Q("2 mm")),
    Sketcher.Constraint("DistanceY", 1, 1, 1, 3, Q("1.918202 mm")),
    Sketcher.Constraint("DistanceY", 2, 2, 3, 3, Q("1.918202 mm")),
    Sketcher.Constraint("DistanceX", 4, 1, 5, 3, Q("1.063299 mm")),
    Sketcher.Constraint("DistanceY", 3, 1, 4, 1, Q("6.417401 mm")),
    Sketcher.Constraint("DistanceY", 0, 2, 4, 1, Q("10.316098 mm")),
    Sketcher.Constraint("Distance", 2, Q("11.026768 mm")),
    Sketcher.Constraint("DistanceX", 1, 3, -1, 1, Q("18.79531 mm")),
    Sketcher.Constraint("DistanceY", -1, 1, 5, 3, Q("34.72554 mm")),
    Sketcher.Constraint("DistanceX", 2, 2, -1, 1, Q("29.937222 mm")),
    Sketcher.Constraint("DistanceX", 5, 1, -1, 1, Q("19.895521 mm")),
])
pocket5 = body.newObject("PartDesign::Pocket", "Pocket004")
pocket5.Profile = sketch6
pocket5.Type = "UpToFirst"
pocket5.Reversed = True

# Sketch on XZ plane
sketch7 = body.newObject("Sketcher::SketchObject", "Sketch006")
sketch7.AttachmentSupport = (doc.getObject("XZ_Plane"), [""])
sketch7.MapMode = "FlatFace"
sketch7.AttachmentOffset = App.Placement(App.Vector(0, 0, -3), App.Rotation())
sketch7.addGeometry([
    Part.LineSegment(App.Vector(-38.081462, 12.582184, 0), App.Vector(-30.090457, 4.983931, 0)),  # 0
    Part.ArcOfCircle(Part.Circle(App.Vector(-31.468604, 3.534548, 0), App.Vector(0, 0, 1), 2), math.radians(-78), math.radians(46.443189)),  # 1
    Part.LineSegment(App.Vector(-31.052781, 1.578252, 0), App.Vector(-40.556194, -0.44176, 0)),  # 2
    Part.ArcOfCircle(Part.Circle(App.Vector(-40.972017, 1.514535, 0), App.Vector(0, 0, 1), 2), math.radians(177.883019), math.radians(282)),  # 3
    Part.ArcOfCircle(Part.Circle(App.Vector(0, 0, 0), App.Vector(0, 0, 1), 43), math.radians(164.244566), math.radians(177.883019)),  # 4
    Part.ArcOfCircle(Part.Circle(App.Vector(-39.459609, 11.132801, 0), App.Vector(0, 0, 1), 2), math.radians(46.443189), math.radians(164.244566)),  # 5
], False)
sketch7.addConstraint([
    Sketcher.Constraint("Tangent", 0, 2, 1, 2),
    Sketcher.Constraint("Tangent", 1, 1, 2, 1),
    Sketcher.Constraint("Tangent", 2, 2, 3, 2),
    Sketcher.Constraint("Tangent", 3, 1, 4, 2),
    Sketcher.Constraint("Tangent", 4, 1, 5, 2),
    Sketcher.Constraint("Tangent", 5, 1, 0, 1),
    Sketcher.Constraint("Coincident", 4, 3, -1, 1),
    Sketcher.Constraint("Equal", 1, 3),
    Sketcher.Constraint("Equal", 3, 5),
    Sketcher.Constraint("Radius", 1, Q("2 mm")),
    Sketcher.Constraint("Radius", 4, Q("43 mm")),
    Sketcher.Constraint("Angle", 2, Q("-168 deg")),
    Sketcher.Constraint("DistanceY", -1, 1, 5, 3, Q("11.132801 mm")),
    Sketcher.Constraint("Distance", 0, Q("11.026768 mm")),
    Sketcher.Constraint("DistanceY", -1, 1, 0, 2, Q("4.983931 mm")),
])
pocket6 = body.newObject("PartDesign::Pocket", "Pocket005")
pocket6.Profile = sketch7
pocket6.Type = "UpToFirst"
pocket6.Reversed = True
doc.recompute()

fillet = body.newObject("PartDesign::Fillet", "Fillet")
fillet.Base = (pocket6, edges_at(pocket6, [
    (-28.773, 1.5, -31.955),
    (-42.06, 1.5, -8.94),
    (-19.563, 1.5, -4.158),
    (-13.383, 1.5, -14.863),
    (42.06, 1.5, -8.94),
    (28.773, 1.5, -31.955),
    (13.383, 1.5, -14.863),
    (19.563, 1.5, -4.158),
    (-13.288, 1.5, 40.895),
    (13.288, 1.5, 40.895),
    (6.18, 1.5, 19.021),
    (-6.18, 1.5, 19.021),
]))
fillet.Radius = 2

doc.recompute()
